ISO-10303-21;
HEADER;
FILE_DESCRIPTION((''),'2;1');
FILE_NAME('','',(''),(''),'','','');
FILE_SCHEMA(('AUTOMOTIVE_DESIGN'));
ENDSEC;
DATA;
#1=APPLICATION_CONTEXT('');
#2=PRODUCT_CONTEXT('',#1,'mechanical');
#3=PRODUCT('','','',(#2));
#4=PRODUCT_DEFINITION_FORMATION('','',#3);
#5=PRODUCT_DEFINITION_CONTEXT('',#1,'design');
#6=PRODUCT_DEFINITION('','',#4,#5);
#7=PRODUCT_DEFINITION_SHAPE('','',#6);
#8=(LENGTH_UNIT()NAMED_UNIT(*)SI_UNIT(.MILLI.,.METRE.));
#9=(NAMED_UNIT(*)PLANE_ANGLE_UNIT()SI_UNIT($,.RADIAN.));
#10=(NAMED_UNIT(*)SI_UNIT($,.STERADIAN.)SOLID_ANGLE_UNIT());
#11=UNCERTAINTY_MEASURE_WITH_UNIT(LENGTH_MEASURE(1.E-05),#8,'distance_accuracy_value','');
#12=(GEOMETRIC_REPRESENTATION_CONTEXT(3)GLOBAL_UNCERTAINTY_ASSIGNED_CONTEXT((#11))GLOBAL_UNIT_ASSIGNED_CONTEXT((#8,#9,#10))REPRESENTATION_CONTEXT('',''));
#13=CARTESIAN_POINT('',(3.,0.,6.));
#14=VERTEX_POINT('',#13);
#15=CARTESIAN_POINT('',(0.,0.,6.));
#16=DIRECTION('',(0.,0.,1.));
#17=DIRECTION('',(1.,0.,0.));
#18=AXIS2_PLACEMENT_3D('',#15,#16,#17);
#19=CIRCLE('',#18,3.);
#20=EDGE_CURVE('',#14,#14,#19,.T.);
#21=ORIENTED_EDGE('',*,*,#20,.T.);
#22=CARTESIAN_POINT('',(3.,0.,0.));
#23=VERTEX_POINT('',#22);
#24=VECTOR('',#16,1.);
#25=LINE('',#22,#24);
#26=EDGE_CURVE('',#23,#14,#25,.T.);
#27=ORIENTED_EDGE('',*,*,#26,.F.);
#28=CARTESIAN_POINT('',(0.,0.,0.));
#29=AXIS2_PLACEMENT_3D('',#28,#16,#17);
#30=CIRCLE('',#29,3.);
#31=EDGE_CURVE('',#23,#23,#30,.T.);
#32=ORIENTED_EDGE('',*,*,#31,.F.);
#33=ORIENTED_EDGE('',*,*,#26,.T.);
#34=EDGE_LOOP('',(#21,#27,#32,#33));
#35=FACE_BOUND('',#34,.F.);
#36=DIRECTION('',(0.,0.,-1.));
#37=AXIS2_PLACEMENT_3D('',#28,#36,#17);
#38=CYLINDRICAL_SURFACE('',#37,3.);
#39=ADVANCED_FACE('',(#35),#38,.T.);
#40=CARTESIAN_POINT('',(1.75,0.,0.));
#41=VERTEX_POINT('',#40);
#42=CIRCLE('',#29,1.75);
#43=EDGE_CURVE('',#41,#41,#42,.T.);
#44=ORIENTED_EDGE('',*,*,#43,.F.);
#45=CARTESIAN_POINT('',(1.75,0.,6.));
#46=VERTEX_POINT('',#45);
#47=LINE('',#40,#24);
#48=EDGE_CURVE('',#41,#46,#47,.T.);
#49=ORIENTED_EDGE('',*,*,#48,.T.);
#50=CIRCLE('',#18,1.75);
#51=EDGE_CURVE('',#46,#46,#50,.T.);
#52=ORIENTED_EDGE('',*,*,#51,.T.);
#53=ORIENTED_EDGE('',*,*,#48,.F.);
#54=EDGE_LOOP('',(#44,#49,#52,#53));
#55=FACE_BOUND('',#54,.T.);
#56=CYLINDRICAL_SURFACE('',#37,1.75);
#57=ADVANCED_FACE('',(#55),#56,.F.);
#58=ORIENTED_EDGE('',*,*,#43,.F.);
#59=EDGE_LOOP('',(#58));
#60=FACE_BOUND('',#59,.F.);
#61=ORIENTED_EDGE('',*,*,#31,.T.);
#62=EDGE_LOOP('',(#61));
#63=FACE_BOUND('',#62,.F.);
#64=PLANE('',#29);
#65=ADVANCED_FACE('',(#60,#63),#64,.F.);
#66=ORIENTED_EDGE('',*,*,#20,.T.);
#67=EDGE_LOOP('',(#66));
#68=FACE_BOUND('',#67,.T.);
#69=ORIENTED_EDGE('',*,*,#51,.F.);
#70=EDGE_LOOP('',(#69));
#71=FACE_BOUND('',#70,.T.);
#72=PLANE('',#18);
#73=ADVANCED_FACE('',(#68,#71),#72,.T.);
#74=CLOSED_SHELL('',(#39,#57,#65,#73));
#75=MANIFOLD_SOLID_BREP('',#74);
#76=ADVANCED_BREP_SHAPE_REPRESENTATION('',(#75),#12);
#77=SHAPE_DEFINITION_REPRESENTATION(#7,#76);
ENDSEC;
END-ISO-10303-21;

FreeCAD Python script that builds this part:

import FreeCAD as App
import Part
import Sketcher

V = App.Vector

doc = App.newDocument("Part")
body = doc.addObject("PartDesign::Body", "Body")

sketch1 = doc.addObject("Sketcher::SketchObject", "Sketch")
body.addObject(sketch1)
sketch1.AttachmentSupport = (doc.XY_Plane, [""])
sketch1.MapMode = "FlatFace"
sketch1.addGeometry([
    Part.Circle(V(0, 0, 0), V(0, 0, 1), 3),
    Part.Circle(V(0, 0, 0), V(0, 0, 1), 1.75),
], False)
sketch1.addConstraint([
    Sketcher.Constraint("Coincident", 0, 3, -1, 1),
    Sketcher.Constraint("Coincident", 1, 3, -1, 1),
    Sketcher.Constraint("Diameter", 0, 6.0),
    Sketcher.Constraint("Diameter", 1, 3.5),
])
pad1 = doc.addObject("PartDesign::Pad", "Pad")
body.addObject(pad1)
pad1.Profile = sketch1
pad1.Length = 6

doc.recompute()
